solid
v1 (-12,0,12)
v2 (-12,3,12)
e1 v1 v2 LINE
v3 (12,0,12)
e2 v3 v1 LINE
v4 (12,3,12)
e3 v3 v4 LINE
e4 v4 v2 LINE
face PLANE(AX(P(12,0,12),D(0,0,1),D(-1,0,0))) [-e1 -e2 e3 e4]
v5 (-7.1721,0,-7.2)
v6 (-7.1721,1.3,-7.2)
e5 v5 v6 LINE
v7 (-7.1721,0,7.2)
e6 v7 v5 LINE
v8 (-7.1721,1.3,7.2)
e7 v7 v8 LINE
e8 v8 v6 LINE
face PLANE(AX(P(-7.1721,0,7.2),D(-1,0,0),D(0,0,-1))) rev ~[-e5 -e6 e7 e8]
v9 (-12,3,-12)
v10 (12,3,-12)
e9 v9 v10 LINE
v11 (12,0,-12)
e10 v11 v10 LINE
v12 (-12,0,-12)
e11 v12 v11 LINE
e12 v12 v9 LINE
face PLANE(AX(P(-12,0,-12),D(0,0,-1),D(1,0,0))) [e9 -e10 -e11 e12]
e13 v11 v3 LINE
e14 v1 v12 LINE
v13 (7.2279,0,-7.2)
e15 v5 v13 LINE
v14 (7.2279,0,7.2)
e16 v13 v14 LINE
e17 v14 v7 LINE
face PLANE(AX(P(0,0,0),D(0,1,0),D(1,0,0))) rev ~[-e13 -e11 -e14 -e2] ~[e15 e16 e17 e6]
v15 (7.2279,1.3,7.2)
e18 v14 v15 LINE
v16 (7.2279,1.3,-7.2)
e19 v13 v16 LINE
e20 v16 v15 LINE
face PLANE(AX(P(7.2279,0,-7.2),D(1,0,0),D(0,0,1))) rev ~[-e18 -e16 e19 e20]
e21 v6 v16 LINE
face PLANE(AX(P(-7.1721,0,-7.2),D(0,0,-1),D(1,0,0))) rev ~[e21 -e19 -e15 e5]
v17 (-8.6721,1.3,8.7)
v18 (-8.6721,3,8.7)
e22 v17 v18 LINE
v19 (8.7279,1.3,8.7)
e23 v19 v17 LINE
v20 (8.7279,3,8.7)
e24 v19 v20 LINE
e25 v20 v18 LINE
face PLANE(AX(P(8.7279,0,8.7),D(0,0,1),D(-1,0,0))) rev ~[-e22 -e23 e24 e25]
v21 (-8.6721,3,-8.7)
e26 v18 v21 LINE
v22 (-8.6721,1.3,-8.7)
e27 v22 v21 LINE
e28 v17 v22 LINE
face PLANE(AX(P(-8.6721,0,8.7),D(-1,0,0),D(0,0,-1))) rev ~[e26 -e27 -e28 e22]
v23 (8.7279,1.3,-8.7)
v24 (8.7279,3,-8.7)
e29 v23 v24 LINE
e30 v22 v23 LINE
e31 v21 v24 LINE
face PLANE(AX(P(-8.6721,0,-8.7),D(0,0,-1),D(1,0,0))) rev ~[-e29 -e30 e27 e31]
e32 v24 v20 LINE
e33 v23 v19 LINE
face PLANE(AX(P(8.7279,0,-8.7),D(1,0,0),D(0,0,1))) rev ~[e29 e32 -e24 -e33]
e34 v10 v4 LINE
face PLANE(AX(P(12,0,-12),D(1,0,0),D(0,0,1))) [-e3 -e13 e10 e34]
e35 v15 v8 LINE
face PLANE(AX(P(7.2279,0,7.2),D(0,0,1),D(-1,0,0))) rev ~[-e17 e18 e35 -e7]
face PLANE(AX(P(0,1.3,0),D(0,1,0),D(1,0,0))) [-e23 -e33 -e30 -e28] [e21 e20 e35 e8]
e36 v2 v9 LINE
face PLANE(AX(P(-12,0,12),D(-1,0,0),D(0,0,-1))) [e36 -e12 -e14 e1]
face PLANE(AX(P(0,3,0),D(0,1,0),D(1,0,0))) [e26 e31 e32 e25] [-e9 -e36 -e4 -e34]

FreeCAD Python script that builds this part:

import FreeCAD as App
import Part
import Sketcher

V = App.Vector


def add_polygon(sketch, points):
    """Adds a closed chain of lines whose ends are joined by coincident constraints."""
    first, n = sketch.GeometryCount, len(points)
    for a, b in zip(points, points[1:] + points[:1]):
        sketch.addGeometry(Part.LineSegment(App.Vector(*a, 0), App.Vector(*b, 0)), False)
    for i in range(n):
        sketch.addConstraint(Sketcher.Constraint("Coincident", first + i, 2, first + (i + 1) % n, 1))

doc = App.newDocument("Part")
body = doc.addObject("PartDesign::Body", "Body")

# Sketch on XZ plane
sketch1 = doc.addObject("Sketcher::SketchObject", "Sketch")
body.addObject(sketch1)
sketch1.AttachmentSupport = (doc.XZ_Plane, [""])
sketch1.MapMode = "FlatFace"
add_polygon(sketch1, [(12, -12), (-12, -12), (-12, 12), (12, 12)])  # lines 0-3
add_polygon(sketch1, [(9, 9), (-9, 9), (-9, -9), (9, -9)])  # lines 4-7
sketch1.addConstraint(Sketcher.Constraint("Horizontal", 0))
sketch1.addConstraint(Sketcher.Constraint("Vertical", 1))
sketch1.addConstraint(Sketcher.Constraint("Horizontal", 2))
sketch1.addConstraint(Sketcher.Constraint("Vertical", 3))
sketch1.addConstraint(Sketcher.Constraint("Horizontal", 4))
sketch1.addConstraint(Sketcher.Constraint("Vertical", 5))
sketch1.addConstraint(Sketcher.Constraint("Horizontal", 6))
sketch1.addConstraint(Sketcher.Constraint("Vertical", 7))
sketch1.addConstraint(Sketcher.Constraint("Symmetric", 0, 2, 2, 2, -1, 1))
sketch1.addConstraint(Sketcher.Constraint("Equal", 2, 1))
sketch1.addConstraint(Sketcher.Constraint("Equal", 6, 5))
sketch1.addConstraint(Sketcher.Constraint("DistanceX", 0, 2, 0, 1, 24.0))
sketch1.addConstraint(Sketcher.Constraint("DistanceX", 4, 2, 4, 1, 17.4))
sketch1.addConstraint(Sketcher.Constraint("DistanceY", -1, 1, 4, 2, 8.7))
sketch1.addConstraint(Sketcher.Constraint("DistanceX", 4, 2, -1, 1, 8.672))
pad1 = doc.addObject("PartDesign::Pad", "Pad")
body.addObject(pad1)
pad1.Profile = sketch1
pad1.Length = 3
pad1.Reversed = True

# Sketch on XZ plane
sketch2 = doc.addObject("Sketcher::SketchObject", "Sketch001")
body.addObject(sketch2)
sketch2.AttachmentSupport = (doc.XZ_Plane, [""])
sketch2.MapMode = "FlatFace"
add_polygon(sketch2, [(-9, -9), (-9, 9), (9, 9), (9, -9)])  # lines 0-3
add_polygon(sketch2, [(-7, 7), (-7, -7), (7, -7), (7, 7)])  # lines 4-7
sketch2.addConstraint(Sketcher.Constraint("Vertical", 0))
sketch2.addConstraint(Sketcher.Constraint("Horizontal", 1))
sketch2.addConstraint(Sketcher.Constraint("Vertical", 2))
sketch2.addConstraint(Sketcher.Constraint("Horizontal", 3))
sketch2.addConstraint(Sketcher.Constraint("Vertical", 4))
sketch2.addConstraint(Sketcher.Constraint("Horizontal", 5))
sketch2.addConstraint(Sketcher.Constraint("Vertical", 6))
sketch2.addConstraint(Sketcher.Constraint("Horizontal", 7))
sketch2.addConstraint(Sketcher.Constraint("Equal", 3, 0))
sketch2.addConstraint(Sketcher.Constraint("Equal", 7, 4))
sketch2.addConstraint(Sketcher.Constraint("DistanceX", 5, 1, 5, 2, 14.4))
sketch2.addConstraint(Sketcher.Constraint("DistanceX", 3, 2, 4, 2, 1.5))
sketch2.addConstraint(Sketcher.Constraint("DistanceY", 3, 2, 4, 2, 1.5))
sketch2.addConstraint(Sketcher.Constraint("DistanceX", 5, 2, 2, 2, 1.5))
sketch2.addConstraint(Sketcher.Constraint("DistanceY", -1, 1, 0, 2, 8.7))
sketch2.addConstraint(Sketcher.Constraint("DistanceX", 0, 2, -1, 1, 8.672))
pad2 = doc.addObject("PartDesign::Pad", "Pad001")
body.addObject(pad2)
pad2.Profile = sketch2
pad2.Length = 1.3
pad2.Reversed = True

doc.recompute()
